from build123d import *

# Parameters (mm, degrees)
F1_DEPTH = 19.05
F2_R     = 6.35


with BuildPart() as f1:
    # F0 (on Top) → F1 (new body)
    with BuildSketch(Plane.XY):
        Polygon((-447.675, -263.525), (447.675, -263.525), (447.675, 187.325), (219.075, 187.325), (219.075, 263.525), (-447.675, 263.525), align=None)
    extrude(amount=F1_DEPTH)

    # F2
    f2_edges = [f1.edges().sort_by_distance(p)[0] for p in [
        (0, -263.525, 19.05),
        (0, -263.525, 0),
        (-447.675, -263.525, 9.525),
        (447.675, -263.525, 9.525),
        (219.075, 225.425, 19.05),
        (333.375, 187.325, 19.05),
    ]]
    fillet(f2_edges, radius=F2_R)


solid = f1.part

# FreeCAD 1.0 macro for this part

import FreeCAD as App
import Part
import Sketcher

V = App.Vector
Q = App.Units.Quantity


def edges_at(feature, points):
    """Names of the edges that pass closest to the given points."""
    edges = feature.Shape.Edges
    near = lambda p: min(range(len(edges)), key=lambda i: edges[i].distToShape(Part.Vertex(*p))[0])
    return sorted({f"Edge{near(p) + 1}" for p in points})

doc = App.newDocument("Part")
body = doc.addObject("PartDesign::Body", "Body")

# Sketch on XY plane
sketch1 = body.newObject("Sketcher::SketchObject", "Sketch")
sketch1.AttachmentSupport = (doc.getObject("XY_Plane"), [""])
sketch1.MapMode = "FlatFace"
sketch1.addGeometry([
    Part.LineSegment(V(-448, -264, 0), V(448, -264, 0)),  # 0
    Part.LineSegment(V(448, -264, 0), V(448, 187, 0)),  # 1
    Part.LineSegment(V(448, 187, 0), V(219, 187, 0)),  # 2
    Part.LineSegment(V(219, 187, 0), V(219, 264, 0)),  # 3
    Part.LineSegment(V(219, 264, 0), V(-448, 264, 0)),  # 4
    Part.LineSegment(V(-448, 264, 0), V(-448, -264, 0)),  # 5
], False)
sketch1.addConstraint([
    Sketcher.Constraint("Coincident", 0, 2, 1, 1),
    Sketcher.Constraint("Coincident", 1, 2, 2, 1),
    Sketcher.Constraint("Coincident", 2, 2, 3, 1),
    Sketcher.Constraint("Coincident", 3, 2, 4, 1),
    Sketcher.Constraint("Coincident", 4, 2, 5, 1),
    Sketcher.Constraint("Coincident", 5, 2, 0, 1),
    Sketcher.Constraint("Horizontal", 0),
    Sketcher.Constraint("Vertical", 1),
    Sketcher.Constraint("Horizontal", 2),
    Sketcher.Constraint("Vertical", 3),
    Sketcher.Constraint("Horizontal", 4),
    Sketcher.Constraint("Vertical", 5),
    Sketcher.Constraint("Symmetric", 0, 2, 4, 2, -1, 1),
    Sketcher.Constraint("DistanceX", 2, 2, 2, 1, Q("9 in")),
    Sketcher.Constraint("DistanceY", 3, 1, 3, 2, Q("3 in")),
    Sketcher.Constraint("DistanceX", 0, 1, 0, 2, Q("35.25 in")),
    Sketcher.Constraint("DistanceY", 1, 1, 1, 2, Q("17.75 in")),
])
pad1 = body.newObject("PartDesign::Pad", "Pad")
pad1.Profile = sketch1
pad1.Length = Q("0.75 in")
doc.recompute()

fillet = body.newObject("PartDesign::Fillet", "Fillet")
fillet.Base = (pad1, edges_at(pad1, [
    (0, -263.525, 19.05),
    (0, -263.525, 0),
    (-447.675, -263.525, 9.525),
    (447.675, -263.525, 9.525),
    (219.075, 225.425, 19.05),
    (333.375, 187.325, 19.05),
]))
fillet.Radius = Q("0.25 in")

doc.recompute()
